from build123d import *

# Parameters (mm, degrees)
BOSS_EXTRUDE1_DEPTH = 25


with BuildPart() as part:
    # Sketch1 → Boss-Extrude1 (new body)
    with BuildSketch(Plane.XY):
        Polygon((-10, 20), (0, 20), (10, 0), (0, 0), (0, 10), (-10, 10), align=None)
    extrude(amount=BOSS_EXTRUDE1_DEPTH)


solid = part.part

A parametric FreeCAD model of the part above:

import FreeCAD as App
import Part
import Sketcher

doc = App.newDocument("Part")
body = doc.addObject("PartDesign::Body", "Body")

# Sketch on XY plane
sketch1 = doc.addObject("Sketcher::SketchObject", "Sketch")
body.addObject(sketch1)
sketch1.AttachmentSupport = (doc.XY_Plane, [""])
sketch1.MapMode = "FlatFace"
sketch1.addGeometry([
    Part.LineSegment(App.Vector(0, 20, 0), App.Vector(-10, 20, 0)),  # 0
    Part.LineSegment(App.Vector(-10, 20, 0), App.Vector(-10, 10, 0)),  # 1
    Part.LineSegment(App.Vector(-10, 10, 0), App.Vector(0, 10, 0)),  # 2
    Part.LineSegment(App.Vector(0, 10, 0), App.Vector(0, 0, 0)),  # 3
    Part.LineSegment(App.Vector(0, 0, 0), App.Vector(10, 0, 0)),  # 4
    Part.LineSegment(App.Vector(10, 0, 0), App.Vector(0, 20, 0)),  # 5
], False)
sketch1.addConstraint([
    Sketcher.Constraint("Coincident", 0, 2, 1, 1),
    Sketcher.Constraint("Coincident", 1, 2, 2, 1),
    Sketcher.Constraint("Coincident", 2, 2, 3, 1),
    Sketcher.Constraint("Coincident", 3, 2, 4, 1),
    Sketcher.Constraint("Coincident", 4, 2, 5, 1),
    Sketcher.Constraint("Coincident", 5, 2, 0, 1),
    Sketcher.Constraint("Horizontal", 0),
    Sketcher.Constraint("Vertical", 1),
    Sketcher.Constraint("Horizontal", 2),
    Sketcher.Constraint("Vertical", 3),
    Sketcher.Constraint("Horizontal", 4),
    Sketcher.Constraint("Coincident", 3, 2, -1, 1),
    Sketcher.Constraint("PointOnObject", 5, 2, -2),
    Sketcher.Constraint("Equal", 2, 4),
    Sketcher.Constraint("Equal", 4, 1),
    Sketcher.Constraint("Equal", 1, 3),
    Sketcher.Constraint("DistanceX", 0, 2, 0, 1, 10.0),
])
pad1 = doc.addObject("PartDesign::Pad", "Pad")
body.addObject(pad1)
pad1.Profile = sketch1
pad1.Length = 25

doc.recompute()
